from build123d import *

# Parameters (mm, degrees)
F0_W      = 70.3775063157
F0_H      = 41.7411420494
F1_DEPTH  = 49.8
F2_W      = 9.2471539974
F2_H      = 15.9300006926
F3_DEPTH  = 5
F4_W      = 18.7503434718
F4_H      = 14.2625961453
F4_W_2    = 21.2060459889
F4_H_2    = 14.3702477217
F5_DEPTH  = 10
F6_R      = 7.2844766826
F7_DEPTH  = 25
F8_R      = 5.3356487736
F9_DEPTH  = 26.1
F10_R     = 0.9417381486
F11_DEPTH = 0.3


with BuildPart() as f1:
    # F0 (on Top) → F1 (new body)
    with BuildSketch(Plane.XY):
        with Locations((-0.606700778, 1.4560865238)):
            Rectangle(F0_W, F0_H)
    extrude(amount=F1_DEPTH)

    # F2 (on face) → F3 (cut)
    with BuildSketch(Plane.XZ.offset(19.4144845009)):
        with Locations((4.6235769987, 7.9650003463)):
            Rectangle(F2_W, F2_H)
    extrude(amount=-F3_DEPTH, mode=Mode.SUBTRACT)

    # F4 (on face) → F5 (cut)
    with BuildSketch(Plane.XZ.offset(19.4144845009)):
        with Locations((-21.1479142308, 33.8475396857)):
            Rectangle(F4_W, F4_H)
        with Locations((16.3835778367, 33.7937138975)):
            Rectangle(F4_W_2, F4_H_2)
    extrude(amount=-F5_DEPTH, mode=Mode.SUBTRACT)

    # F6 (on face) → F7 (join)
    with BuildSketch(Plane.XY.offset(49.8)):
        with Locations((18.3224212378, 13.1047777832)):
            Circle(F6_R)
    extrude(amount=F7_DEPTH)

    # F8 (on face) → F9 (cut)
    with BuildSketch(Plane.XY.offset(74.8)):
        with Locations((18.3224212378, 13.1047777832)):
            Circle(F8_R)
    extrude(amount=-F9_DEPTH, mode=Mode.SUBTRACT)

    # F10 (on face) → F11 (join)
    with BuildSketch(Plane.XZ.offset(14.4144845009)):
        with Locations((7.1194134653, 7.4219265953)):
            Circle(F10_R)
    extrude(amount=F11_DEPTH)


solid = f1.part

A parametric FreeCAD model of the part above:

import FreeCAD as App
import Part
import Sketcher
Q = App.Units.Quantity


def add_polygon(sketch, points):
    """Adds a closed chain of lines whose ends are joined by coincident constraints."""
    first, n = sketch.GeometryCount, len(points)
    for a, b in zip(points, points[1:] + points[:1]):
        sketch.addGeometry(Part.LineSegment(App.Vector(*a, 0), App.Vector(*b, 0)), False)
    for i in range(n):
        sketch.addConstraint(Sketcher.Constraint("Coincident", first + i, 2, first + (i + 1) % n, 1))

doc = App.newDocument("Part")
body = doc.addObject("PartDesign::Body", "Body")

# Sketch on XY plane
sketch1 = body.newObject("Sketcher::SketchObject", "Sketch")
sketch1.AttachmentSupport = (doc.getObject("XY_Plane"), [""])
sketch1.MapMode = "FlatFace"
add_polygon(sketch1, [(-35.795454, 22.326658), (-35.795454, -19.414485), (34.582052, -19.414485), (34.582052, 22.326658)])  # lines 0-3
sketch1.addConstraint(Sketcher.Constraint("Vertical", 0))
sketch1.addConstraint(Sketcher.Constraint("Horizontal", 1))
sketch1.addConstraint(Sketcher.Constraint("Vertical", 2))
sketch1.addConstraint(Sketcher.Constraint("Horizontal", 3))
sketch1.addConstraint(Sketcher.Constraint("DistanceX", 1, 1, 1, 2, Q("70.377506 mm")))
sketch1.addConstraint(Sketcher.Constraint("DistanceY", 0, 2, 0, 1, Q("41.741142 mm")))
sketch1.addConstraint(Sketcher.Constraint("DistanceX", 0, 2, -1, 1, Q("35.795454 mm")))
sketch1.addConstraint(Sketcher.Constraint("DistanceY", 0, 2, -1, 1, Q("19.414485 mm")))
pad1 = body.newObject("PartDesign::Pad", "Pad")
pad1.Profile = sketch1
pad1.Length = 49.8

# Sketch on XZ plane
sketch2 = body.newObject("Sketcher::SketchObject", "Sketch001")
sketch2.AttachmentSupport = (doc.getObject("XZ_Plane"), [""])
sketch2.MapMode = "FlatFace"
sketch2.AttachmentOffset = App.Placement(App.Vector(0, 0, 19.414485), App.Rotation())
add_polygon(sketch2, [(0, 15.930001), (0, 0), (9.247154, 0), (9.247154, 15.930001)])  # lines 0-3
sketch2.addConstraint(Sketcher.Constraint("Vertical", 0))
sketch2.addConstraint(Sketcher.Constraint("Horizontal", 1))
sketch2.addConstraint(Sketcher.Constraint("Vertical", 2))
sketch2.addConstraint(Sketcher.Constraint("Horizontal", 3))
sketch2.addConstraint(Sketcher.Constraint("Coincident", 0, 2, -1, 1))
sketch2.addConstraint(Sketcher.Constraint("DistanceY", 0, 2, 0, 1, Q("15.930001 mm")))
sketch2.addConstraint(Sketcher.Constraint("DistanceX", 1, 1, 1, 2, Q("9.247154 mm")))
pocket1 = body.newObject("PartDesign::Pocket", "Pocket")
pocket1.Profile = sketch2
pocket1.Length = 5

# Sketch on XZ plane
sketch3 = body.newObject("Sketcher::SketchObject", "Sketch002")
sketch3.AttachmentSupport = (doc.getObject("XZ_Plane"), [""])
sketch3.MapMode = "FlatFace"
sketch3.AttachmentOffset = App.Placement(App.Vector(0, 0, 19.414485), App.Rotation())
add_polygon(sketch3, [(-30.523086, 40.978838), (-30.523086, 26.716242), (-11.772742, 26.716242), (-11.772742, 40.978838)])  # lines 0-3
add_polygon(sketch3, [(5.780555, 40.978838), (5.780555, 26.60859), (26.986601, 26.60859), (26.986601, 40.978838)])  # lines 4-7
sketch3.addConstraint(Sketcher.Constraint("Vertical", 0))
sketch3.addConstraint(Sketcher.Constraint("Horizontal", 1))
sketch3.addConstraint(Sketcher.Constraint("Vertical", 2))
sketch3.addConstraint(Sketcher.Constraint("Horizontal", 3))
sketch3.addConstraint(Sketcher.Constraint("Vertical", 4))
sketch3.addConstraint(Sketcher.Constraint("Horizontal", 5))
sketch3.addConstraint(Sketcher.Constraint("Vertical", 6))
sketch3.addConstraint(Sketcher.Constraint("Horizontal", 7))
sketch3.addConstraint(Sketcher.Constraint("Horizontal", 3, 2, 6, 2))
sketch3.addConstraint(Sketcher.Constraint("DistanceX", -1, 1, 5, 2, Q("26.986601 mm")))
sketch3.addConstraint(Sketcher.Constraint("DistanceX", 1, 1, 1, 2, Q("18.750343 mm")))
sketch3.addConstraint(Sketcher.Constraint("DistanceX", 5, 1, 5, 2, Q("21.206046 mm")))
sketch3.addConstraint(Sketcher.Constraint("DistanceY", 0, 2, 0, 1, Q("14.262596 mm")))
sketch3.addConstraint(Sketcher.Constraint("DistanceY", 4, 2, 4, 1, Q("14.370248 mm")))
sketch3.addConstraint(Sketcher.Constraint("DistanceY", -1, 1, 0, 2, Q("26.716242 mm")))
sketch3.addConstraint(Sketcher.Constraint("DistanceX", 0, 2, 4, 2, Q("36.303641 mm")))
pocket2 = body.newObject("PartDesign::Pocket", "Pocket001")
pocket2.Profile = sketch3
pocket2.Length = 10

# Sketch on XY plane
sketch4 = body.newObject("Sketcher::SketchObject", "Sketch003")
sketch4.AttachmentSupport = (doc.getObject("XY_Plane"), [""])
sketch4.MapMode = "FlatFace"
sketch4.AttachmentOffset = App.Placement(App.Vector(0, 0, 49.8), App.Rotation())
sketch4.addGeometry(Part.Circle(App.Vector(18.322421, 13.104778, 0), App.Vector(0, 0, 1), 7.284477), False)
sketch4.addConstraint(Sketcher.Constraint("Diameter", 0, Q("14.568953 mm")))
sketch4.addConstraint(Sketcher.Constraint("DistanceX", -1, 1, 0, 3, Q("18.322421 mm")))
sketch4.addConstraint(Sketcher.Constraint("DistanceY", -1, 1, 0, 3, Q("13.104778 mm")))
pad2 = body.newObject("PartDesign::Pad", "Pad001")
pad2.Profile = sketch4
pad2.Length = 25

# Sketch on XY plane
sketch5 = body.newObject("Sketcher::SketchObject", "Sketch004")
sketch5.AttachmentSupport = (doc.getObject("XY_Plane"), [""])
sketch5.MapMode = "FlatFace"
sketch5.AttachmentOffset = App.Placement(App.Vector(0, 0, 74.8), App.Rotation())
sketch5.addGeometry(Part.Circle(App.Vector(18.322421, 13.104778, 0), App.Vector(0, 0, 1), 5.335649), False)
sketch5.addConstraint(Sketcher.Constraint("Diameter", 0, Q("10.671298 mm")))
sketch5.addConstraint(Sketcher.Constraint("DistanceX", -1, 1, 0, 3, Q("18.322421 mm")))
sketch5.addConstraint(Sketcher.Constraint("DistanceY", -1, 1, 0, 3, Q("13.104778 mm")))
pocket3 = body.newObject("PartDesign::Pocket", "Pocket002")
pocket3.Profile = sketch5
pocket3.Length = 26.1

# Sketch on XZ plane
sketch6 = body.newObject("Sketcher::SketchObject", "Sketch005")
sketch6.AttachmentSupport = (doc.getObject("XZ_Plane"), [""])
sketch6.MapMode = "FlatFace"
sketch6.AttachmentOffset = App.Placement(App.Vector(0, 0, 14.414485), App.Rotation())
sketch6.addGeometry(Part.Circle(App.Vector(7.119413, 7.421927, 0), App.Vector(0, 0, 1), 0.941738), False)
sketch6.addConstraint(Sketcher.Constraint("Diameter", 0, Q("1.883476 mm")))
sketch6.addConstraint(Sketcher.Constraint("DistanceX", -1, 1, 0, 3, Q("7.119413 mm")))
sketch6.addConstraint(Sketcher.Constraint("DistanceY", -1, 1, 0, 3, Q("7.421927 mm")))
pad3 = body.newObject("PartDesign::Pad", "Pad002")
pad3.Profile = sketch6
pad3.Length = 0.3

doc.recompute()
